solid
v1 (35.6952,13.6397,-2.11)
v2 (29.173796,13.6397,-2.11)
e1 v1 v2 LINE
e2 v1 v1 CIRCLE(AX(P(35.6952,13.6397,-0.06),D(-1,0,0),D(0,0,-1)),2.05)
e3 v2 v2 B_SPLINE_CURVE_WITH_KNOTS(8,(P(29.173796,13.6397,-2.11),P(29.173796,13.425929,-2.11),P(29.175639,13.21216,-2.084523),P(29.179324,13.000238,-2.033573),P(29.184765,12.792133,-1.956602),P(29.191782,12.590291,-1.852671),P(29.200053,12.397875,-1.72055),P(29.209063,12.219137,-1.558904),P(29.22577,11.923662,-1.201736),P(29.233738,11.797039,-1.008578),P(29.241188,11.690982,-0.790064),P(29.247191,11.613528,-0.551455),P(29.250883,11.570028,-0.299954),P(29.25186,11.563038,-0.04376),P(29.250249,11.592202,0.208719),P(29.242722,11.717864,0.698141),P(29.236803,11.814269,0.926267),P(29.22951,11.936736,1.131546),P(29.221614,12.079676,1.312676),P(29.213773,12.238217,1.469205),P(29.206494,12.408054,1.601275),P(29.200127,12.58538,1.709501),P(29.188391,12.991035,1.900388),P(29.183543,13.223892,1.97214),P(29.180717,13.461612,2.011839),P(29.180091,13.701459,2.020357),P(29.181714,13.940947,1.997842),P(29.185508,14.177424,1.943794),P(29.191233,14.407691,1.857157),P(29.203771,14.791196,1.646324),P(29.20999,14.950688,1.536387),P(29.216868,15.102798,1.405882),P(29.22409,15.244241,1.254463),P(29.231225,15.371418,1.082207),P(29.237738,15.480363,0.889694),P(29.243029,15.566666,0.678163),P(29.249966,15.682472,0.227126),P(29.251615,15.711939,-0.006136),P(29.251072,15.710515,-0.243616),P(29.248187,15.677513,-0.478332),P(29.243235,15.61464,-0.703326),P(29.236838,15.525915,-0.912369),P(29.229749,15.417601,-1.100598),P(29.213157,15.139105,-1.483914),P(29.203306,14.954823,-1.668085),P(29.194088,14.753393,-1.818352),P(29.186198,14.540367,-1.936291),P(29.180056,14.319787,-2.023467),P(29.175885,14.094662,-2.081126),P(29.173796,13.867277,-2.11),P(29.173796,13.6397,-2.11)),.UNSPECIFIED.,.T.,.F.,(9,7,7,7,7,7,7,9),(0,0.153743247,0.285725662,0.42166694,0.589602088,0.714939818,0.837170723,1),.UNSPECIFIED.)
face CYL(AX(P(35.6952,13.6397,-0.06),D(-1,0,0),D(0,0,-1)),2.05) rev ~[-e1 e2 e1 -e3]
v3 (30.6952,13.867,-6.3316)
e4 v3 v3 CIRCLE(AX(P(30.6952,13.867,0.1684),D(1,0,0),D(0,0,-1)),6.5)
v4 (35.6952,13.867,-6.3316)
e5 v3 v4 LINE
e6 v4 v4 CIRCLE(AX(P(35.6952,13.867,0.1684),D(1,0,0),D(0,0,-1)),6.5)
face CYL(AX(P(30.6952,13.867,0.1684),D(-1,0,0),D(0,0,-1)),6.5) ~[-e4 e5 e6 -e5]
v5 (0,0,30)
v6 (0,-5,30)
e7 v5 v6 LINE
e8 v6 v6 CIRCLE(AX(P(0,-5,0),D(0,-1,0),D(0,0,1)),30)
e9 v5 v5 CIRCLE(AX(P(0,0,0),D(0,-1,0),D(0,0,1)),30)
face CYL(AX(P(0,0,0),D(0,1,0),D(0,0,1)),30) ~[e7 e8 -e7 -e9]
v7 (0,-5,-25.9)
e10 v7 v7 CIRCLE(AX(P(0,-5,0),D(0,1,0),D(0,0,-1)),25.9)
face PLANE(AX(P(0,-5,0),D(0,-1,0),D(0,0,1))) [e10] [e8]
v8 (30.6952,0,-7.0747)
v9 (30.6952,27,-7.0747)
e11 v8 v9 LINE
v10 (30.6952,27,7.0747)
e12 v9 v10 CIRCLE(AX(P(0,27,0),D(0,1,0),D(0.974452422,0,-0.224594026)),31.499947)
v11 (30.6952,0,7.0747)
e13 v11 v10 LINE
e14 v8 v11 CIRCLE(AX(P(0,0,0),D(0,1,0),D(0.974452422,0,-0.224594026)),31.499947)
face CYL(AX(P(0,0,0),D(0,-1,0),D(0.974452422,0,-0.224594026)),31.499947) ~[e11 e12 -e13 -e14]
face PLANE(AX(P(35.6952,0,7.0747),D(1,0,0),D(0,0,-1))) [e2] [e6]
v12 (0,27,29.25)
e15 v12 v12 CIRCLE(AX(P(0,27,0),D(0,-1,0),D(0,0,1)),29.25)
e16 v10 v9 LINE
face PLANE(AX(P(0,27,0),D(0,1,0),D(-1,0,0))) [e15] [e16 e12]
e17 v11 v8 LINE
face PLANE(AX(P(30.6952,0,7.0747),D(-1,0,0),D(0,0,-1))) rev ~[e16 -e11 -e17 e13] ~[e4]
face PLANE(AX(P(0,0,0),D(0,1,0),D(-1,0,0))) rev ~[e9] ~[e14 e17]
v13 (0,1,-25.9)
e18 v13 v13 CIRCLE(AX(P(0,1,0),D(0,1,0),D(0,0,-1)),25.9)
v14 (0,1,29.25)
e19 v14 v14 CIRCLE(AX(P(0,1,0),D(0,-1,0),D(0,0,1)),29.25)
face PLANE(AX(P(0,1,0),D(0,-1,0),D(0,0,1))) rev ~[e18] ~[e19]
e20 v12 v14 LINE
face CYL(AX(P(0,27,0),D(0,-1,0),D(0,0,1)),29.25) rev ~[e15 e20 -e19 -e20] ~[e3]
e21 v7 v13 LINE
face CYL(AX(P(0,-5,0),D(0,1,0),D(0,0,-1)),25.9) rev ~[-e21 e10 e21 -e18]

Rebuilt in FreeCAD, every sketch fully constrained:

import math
import FreeCAD as App
import Part
import Sketcher

V = App.Vector

doc = App.newDocument("Part")
body = doc.addObject("PartDesign::Body", "Body")

# Sketch on XZ plane
sketch1 = doc.addObject("Sketcher::SketchObject", "Sketch")
body.addObject(sketch1)
sketch1.AttachmentSupport = (doc.XZ_Plane, [""])
sketch1.MapMode = "FlatFace"
sketch1.addGeometry([
    Part.LineSegment(V(31, 7, 0), V(31, -7, 0)),
    Part.ArcOfCircle(Part.Circle(V(0, 0, 0), V(0, 0, 1), 31), math.radians(13), math.radians(347)),
], False)
sketch1.addConstraint([
    Sketcher.Constraint("Coincident", 0, 1, 1, 1),
    Sketcher.Constraint("Coincident", 1, 2, 0, 2),
    Sketcher.Constraint("Vertical", 0),
    Sketcher.Constraint("Coincident", 1, 3, -1, 1),
    Sketcher.Constraint("Radius", 1, 31.5),
    Sketcher.Constraint("DistanceY", 0, 2, 0, 1, 14.1494),
])
pad1 = doc.addObject("PartDesign::Pad", "Pad")
body.addObject(pad1)
pad1.Profile = sketch1
pad1.Length = 27
pad1.Reversed = True

# Sketch on XZ plane
sketch2 = doc.addObject("Sketcher::SketchObject", "Sketch001")
body.addObject(sketch2)
sketch2.AttachmentSupport = (doc.XZ_Plane, [""])
sketch2.MapMode = "FlatFace"
sketch2.AttachmentOffset = App.Placement(V(0, 0, -27), App.Rotation())
sketch2.addGeometry(Part.Circle(V(0, 0, 0), V(0, 0, 1), 29), False)
sketch2.addConstraint([
    Sketcher.Constraint("Coincident", 0, 3, -1, 1),
    Sketcher.Constraint("Diameter", 0, 58.5),
])
doc.recompute()
hole = doc.addObject("PartDesign::Hole", "Hole")
body.addObject(hole)
hole.Profile = sketch2
hole.ThreadType = "None"
hole.Diameter = 58.5
hole.DepthType = "Dimension"
hole.Depth = 26
hole.DrillPoint = "Flat"
hole.Reversed = True

# Sketch on XZ plane
sketch3 = doc.addObject("Sketcher::SketchObject", "Sketch002")
body.addObject(sketch3)
sketch3.AttachmentSupport = (doc.XZ_Plane, [""])
sketch3.MapMode = "FlatFace"
sketch3.addGeometry(Part.Circle(V(0, 0, 0), V(0, 0, 1), 30), False)
sketch3.addConstraint([
    Sketcher.Constraint("Coincident", 0, 3, -1, 1),
    Sketcher.Constraint("Diameter", 0, 60.0),
])
pad2 = doc.addObject("PartDesign::Pad", "Pad001")
body.addObject(pad2)
pad2.Profile = sketch3
pad2.Length = 5

# Sketch on XZ plane
sketch4 = doc.addObject("Sketcher::SketchObject", "Sketch003")
body.addObject(sketch4)
sketch4.AttachmentSupport = (doc.XZ_Plane, [""])
sketch4.MapMode = "FlatFace"
sketch4.AttachmentOffset = App.Placement(V(0, 0, 5), App.Rotation())
sketch4.addGeometry(Part.Circle(V(0, 0, 0), V(0, 0, 1), 26), False)
sketch4.addConstraint([
    Sketcher.Constraint("Coincident", 0, 3, -1, 1),
    Sketcher.Constraint("Diameter", 0, 51.8),
])
doc.recompute()
hole2 = doc.addObject("PartDesign::Hole", "Hole001")
body.addObject(hole2)
hole2.Profile = sketch4
hole2.ThreadType = "None"
hole2.Diameter = 51.8
hole2.DepthType = "Dimension"
hole2.Depth = 11
hole2.DrillPoint = "Flat"

# Sketch on YZ plane
sketch5 = doc.addObject("Sketcher::SketchObject", "Sketch004")
body.addObject(sketch5)
sketch5.AttachmentSupport = (doc.YZ_Plane, [""])
sketch5.MapMode = "FlatFace"
sketch5.AttachmentOffset = App.Placement(V(0, 0, 30.6952), App.Rotation())
sketch5.addGeometry(Part.Circle(V(14, 0, 0), V(0, 0, 1), 6), False)
sketch5.addConstraint([
    Sketcher.Constraint("Diameter", 0, 13.0),
    Sketcher.Constraint("DistanceX", -1, 1, 0, 3, 13.867),
    Sketcher.Constraint("DistanceY", -1, 1, 0, 3, 0.1684),
])
pad3 = doc.addObject("PartDesign::Pad", "Pad002")
body.addObject(pad3)
pad3.Profile = sketch5
pad3.Length = 5

# Sketch on YZ plane
sketch6 = doc.addObject("Sketcher::SketchObject", "Sketch005")
body.addObject(sketch6)
sketch6.AttachmentSupport = (doc.YZ_Plane, [""])
sketch6.MapMode = "FlatFace"
sketch6.AttachmentOffset = App.Placement(V(0, 0, 35.6952), App.Rotation())
sketch6.addGeometry(Part.Circle(V(13.6, -0.1, 0), V(0, 0, 1), 2), False)
sketch6.addConstraint([
    Sketcher.Constraint("Diameter", 0, 4.1),
    Sketcher.Constraint("DistanceY", 0, 3, -1, 1, 0.06),
    Sketcher.Constraint("DistanceX", -1, 1, 0, 3, 13.6397),
])
doc.recompute()
hole3 = doc.addObject("PartDesign::Hole", "Hole002")
body.addObject(hole3)
hole3.Profile = sketch6
hole3.ThreadType = "None"
hole3.Diameter = 4.1
hole3.DepthType = "Dimension"
hole3.Depth = 10
hole3.DrillPoint = "Flat"

doc.recompute()
